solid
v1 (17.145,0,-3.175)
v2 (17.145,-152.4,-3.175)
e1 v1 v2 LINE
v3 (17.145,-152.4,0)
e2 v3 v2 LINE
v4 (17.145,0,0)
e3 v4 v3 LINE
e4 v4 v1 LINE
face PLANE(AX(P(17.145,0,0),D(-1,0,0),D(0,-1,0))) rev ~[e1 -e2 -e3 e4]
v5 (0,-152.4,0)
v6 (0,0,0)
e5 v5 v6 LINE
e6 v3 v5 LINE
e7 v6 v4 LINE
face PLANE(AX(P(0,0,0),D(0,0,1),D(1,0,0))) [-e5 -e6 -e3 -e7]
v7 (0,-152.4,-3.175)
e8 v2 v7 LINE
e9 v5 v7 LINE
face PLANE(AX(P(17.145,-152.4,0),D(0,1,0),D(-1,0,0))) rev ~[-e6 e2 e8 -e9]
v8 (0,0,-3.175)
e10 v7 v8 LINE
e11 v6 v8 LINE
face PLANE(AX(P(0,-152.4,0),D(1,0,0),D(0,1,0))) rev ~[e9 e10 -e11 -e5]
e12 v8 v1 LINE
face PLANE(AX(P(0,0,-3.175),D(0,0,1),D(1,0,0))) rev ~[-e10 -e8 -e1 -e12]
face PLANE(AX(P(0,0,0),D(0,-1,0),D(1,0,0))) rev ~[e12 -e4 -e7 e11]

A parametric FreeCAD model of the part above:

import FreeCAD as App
import Part
import Sketcher
Q = App.Units.Quantity


def add_polygon(sketch, points):
    """Adds a closed chain of lines whose ends are joined by coincident constraints."""
    first, n = sketch.GeometryCount, len(points)
    for a, b in zip(points, points[1:] + points[:1]):
        sketch.addGeometry(Part.LineSegment(App.Vector(*a, 0), App.Vector(*b, 0)), False)
    for i in range(n):
        sketch.addConstraint(Sketcher.Constraint("Coincident", first + i, 2, first + (i + 1) % n, 1))

doc = App.newDocument("Part")
body = doc.addObject("PartDesign::Body", "Body")

# Sketch on XY plane
sketch1 = body.newObject("Sketcher::SketchObject", "Sketch")
sketch1.AttachmentSupport = (doc.getObject("XY_Plane"), [""])
sketch1.MapMode = "FlatFace"
add_polygon(sketch1, [(17, 0), (0, 0), (0, -152), (17, -152)])  # lines 0-3
sketch1.addConstraint([
    Sketcher.Constraint("Horizontal", 0),
    Sketcher.Constraint("Vertical", 1),
    Sketcher.Constraint("Horizontal", 2),
    Sketcher.Constraint("Vertical", 3),
    Sketcher.Constraint("Coincident", 0, 2, -1, 1),
    Sketcher.Constraint("DistanceY", 1, 2, 1, 1, Q("6 in")),
    Sketcher.Constraint("DistanceX", 0, 2, 0, 1, Q("0.675 in")),
])
pad1 = body.newObject("PartDesign::Pad", "Pad")
pad1.Profile = sketch1
pad1.Length = Q("0.125 in")
pad1.Reversed = True

doc.recompute()
